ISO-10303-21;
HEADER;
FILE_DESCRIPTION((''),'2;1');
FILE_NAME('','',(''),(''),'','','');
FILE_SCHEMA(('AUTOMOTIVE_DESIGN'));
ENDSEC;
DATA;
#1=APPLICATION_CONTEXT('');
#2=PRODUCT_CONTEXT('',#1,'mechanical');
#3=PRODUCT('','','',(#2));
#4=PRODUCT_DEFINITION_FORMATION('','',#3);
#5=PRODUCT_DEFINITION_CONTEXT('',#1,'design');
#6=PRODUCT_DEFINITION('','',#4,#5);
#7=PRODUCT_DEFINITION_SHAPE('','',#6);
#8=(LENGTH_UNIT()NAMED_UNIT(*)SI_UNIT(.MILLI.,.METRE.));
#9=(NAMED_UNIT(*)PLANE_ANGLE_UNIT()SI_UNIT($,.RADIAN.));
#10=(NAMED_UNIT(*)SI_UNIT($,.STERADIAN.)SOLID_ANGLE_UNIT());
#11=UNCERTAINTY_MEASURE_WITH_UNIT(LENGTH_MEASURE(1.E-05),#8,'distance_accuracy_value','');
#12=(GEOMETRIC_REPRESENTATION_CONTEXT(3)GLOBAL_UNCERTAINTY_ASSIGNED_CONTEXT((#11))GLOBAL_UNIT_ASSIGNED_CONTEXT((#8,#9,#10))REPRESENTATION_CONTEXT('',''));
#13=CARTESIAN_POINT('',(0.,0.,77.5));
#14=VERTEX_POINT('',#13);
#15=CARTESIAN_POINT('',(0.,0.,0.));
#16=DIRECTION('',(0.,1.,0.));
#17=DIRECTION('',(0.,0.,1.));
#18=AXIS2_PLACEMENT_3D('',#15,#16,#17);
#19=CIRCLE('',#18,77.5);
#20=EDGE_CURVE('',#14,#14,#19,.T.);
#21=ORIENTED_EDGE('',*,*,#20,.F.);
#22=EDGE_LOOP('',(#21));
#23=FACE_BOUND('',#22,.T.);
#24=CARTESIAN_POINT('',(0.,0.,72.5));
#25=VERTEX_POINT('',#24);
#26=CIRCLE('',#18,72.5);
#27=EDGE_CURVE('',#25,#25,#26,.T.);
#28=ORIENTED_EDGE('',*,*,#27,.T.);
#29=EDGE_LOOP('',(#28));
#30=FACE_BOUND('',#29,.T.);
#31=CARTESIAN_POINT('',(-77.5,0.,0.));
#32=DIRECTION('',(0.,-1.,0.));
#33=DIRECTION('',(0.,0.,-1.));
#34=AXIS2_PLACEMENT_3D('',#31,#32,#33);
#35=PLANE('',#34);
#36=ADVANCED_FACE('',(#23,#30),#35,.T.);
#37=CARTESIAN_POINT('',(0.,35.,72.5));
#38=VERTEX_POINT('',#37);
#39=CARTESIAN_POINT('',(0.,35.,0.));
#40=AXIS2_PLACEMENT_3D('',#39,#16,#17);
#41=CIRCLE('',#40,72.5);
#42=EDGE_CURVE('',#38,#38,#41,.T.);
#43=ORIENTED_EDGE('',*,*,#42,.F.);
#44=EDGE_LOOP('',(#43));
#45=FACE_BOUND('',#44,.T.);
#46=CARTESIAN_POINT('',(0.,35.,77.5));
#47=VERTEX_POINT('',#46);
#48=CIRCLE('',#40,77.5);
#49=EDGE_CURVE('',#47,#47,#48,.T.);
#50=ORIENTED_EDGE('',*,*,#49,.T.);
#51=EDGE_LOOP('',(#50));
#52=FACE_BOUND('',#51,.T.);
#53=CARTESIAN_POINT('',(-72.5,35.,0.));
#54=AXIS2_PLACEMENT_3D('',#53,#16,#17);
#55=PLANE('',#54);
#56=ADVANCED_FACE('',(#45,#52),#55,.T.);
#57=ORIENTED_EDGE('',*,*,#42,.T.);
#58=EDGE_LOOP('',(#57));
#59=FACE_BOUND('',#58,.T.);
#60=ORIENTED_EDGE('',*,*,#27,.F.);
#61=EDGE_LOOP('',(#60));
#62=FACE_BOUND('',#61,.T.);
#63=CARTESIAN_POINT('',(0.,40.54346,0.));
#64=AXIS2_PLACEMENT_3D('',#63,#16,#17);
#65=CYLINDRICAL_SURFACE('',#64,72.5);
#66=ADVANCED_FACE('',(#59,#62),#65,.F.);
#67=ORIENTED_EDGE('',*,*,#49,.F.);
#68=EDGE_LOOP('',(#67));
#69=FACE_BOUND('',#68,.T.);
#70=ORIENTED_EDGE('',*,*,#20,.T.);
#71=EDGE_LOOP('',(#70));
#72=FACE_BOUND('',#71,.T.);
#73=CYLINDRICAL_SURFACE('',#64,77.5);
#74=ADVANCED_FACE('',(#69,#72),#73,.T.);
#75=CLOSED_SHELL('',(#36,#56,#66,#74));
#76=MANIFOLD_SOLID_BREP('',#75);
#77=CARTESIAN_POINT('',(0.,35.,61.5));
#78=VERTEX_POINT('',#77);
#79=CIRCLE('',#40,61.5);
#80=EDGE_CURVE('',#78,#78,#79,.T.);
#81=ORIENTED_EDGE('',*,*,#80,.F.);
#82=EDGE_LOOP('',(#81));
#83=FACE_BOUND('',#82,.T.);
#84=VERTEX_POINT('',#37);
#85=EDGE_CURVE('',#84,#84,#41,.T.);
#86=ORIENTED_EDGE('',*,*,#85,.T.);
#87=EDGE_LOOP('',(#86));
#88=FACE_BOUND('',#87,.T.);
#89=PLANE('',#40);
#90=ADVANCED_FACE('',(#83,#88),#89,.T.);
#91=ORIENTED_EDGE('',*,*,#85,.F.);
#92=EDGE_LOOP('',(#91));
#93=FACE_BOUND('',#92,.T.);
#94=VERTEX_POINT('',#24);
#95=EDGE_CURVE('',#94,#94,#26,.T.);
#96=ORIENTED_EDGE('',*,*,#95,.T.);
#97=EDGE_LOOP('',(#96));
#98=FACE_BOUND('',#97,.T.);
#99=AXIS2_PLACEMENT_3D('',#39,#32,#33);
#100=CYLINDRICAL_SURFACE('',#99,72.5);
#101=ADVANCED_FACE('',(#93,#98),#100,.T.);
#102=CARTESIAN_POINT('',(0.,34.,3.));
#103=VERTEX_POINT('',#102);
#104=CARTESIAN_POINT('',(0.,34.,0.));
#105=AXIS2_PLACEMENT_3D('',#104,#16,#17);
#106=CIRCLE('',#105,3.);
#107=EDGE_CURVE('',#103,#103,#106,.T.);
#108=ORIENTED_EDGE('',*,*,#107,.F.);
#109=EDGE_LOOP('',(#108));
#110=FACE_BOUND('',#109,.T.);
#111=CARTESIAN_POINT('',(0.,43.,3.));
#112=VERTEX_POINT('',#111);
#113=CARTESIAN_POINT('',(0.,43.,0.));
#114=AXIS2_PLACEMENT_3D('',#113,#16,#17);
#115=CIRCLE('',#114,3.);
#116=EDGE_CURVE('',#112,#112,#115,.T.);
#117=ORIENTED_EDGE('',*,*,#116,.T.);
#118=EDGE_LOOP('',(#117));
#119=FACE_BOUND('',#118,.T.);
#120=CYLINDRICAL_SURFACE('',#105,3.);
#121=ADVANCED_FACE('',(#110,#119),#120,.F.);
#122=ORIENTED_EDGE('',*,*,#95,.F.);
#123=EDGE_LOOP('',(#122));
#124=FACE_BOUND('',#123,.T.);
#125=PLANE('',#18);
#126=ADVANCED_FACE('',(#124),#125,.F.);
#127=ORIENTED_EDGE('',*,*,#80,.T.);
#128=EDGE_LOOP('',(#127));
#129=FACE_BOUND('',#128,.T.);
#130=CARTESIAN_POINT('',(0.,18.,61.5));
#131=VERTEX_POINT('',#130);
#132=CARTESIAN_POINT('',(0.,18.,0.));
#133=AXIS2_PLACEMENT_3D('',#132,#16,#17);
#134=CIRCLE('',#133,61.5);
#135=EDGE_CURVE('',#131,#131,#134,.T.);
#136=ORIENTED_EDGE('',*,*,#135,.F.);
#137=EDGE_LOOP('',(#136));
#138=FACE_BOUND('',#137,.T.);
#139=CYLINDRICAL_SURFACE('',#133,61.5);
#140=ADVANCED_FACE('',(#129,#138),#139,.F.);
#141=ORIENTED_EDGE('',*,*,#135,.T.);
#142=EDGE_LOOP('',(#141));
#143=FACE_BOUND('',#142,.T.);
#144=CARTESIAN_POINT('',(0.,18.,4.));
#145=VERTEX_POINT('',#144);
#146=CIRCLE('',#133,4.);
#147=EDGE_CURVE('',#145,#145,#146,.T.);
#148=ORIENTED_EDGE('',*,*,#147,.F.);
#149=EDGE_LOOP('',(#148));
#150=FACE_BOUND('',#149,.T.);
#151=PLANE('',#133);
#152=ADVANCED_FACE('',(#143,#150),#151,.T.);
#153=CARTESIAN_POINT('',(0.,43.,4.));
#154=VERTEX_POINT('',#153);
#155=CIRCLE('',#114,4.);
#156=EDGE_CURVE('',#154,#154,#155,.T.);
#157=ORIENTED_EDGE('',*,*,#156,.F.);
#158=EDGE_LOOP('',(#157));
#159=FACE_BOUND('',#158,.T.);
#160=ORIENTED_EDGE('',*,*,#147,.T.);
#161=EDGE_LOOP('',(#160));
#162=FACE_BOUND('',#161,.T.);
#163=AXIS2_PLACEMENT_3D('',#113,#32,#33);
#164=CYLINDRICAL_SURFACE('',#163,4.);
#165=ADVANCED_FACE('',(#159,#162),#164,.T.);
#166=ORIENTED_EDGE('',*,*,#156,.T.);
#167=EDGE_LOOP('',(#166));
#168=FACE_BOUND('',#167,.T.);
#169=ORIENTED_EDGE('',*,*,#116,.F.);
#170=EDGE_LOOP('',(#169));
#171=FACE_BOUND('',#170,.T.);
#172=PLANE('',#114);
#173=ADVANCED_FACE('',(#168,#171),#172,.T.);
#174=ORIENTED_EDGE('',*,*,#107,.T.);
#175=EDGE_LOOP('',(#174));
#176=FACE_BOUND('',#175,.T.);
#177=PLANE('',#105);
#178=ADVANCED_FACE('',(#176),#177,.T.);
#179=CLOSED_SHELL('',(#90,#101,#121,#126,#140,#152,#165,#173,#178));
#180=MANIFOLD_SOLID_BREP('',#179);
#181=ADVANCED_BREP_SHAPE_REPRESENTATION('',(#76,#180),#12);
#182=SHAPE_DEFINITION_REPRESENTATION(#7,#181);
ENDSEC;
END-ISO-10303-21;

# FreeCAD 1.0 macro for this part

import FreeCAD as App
import Part
import Sketcher

V = App.Vector


def add_polygon(sketch, points):
    """Adds a closed chain of lines whose ends are joined by coincident constraints."""
    first, n = sketch.GeometryCount, len(points)
    for a, b in zip(points, points[1:] + points[:1]):
        sketch.addGeometry(Part.LineSegment(App.Vector(*a, 0), App.Vector(*b, 0)), False)
    for i in range(n):
        sketch.addConstraint(Sketcher.Constraint("Coincident", first + i, 2, first + (i + 1) % n, 1))

doc = App.newDocument("Part")
body = doc.addObject("PartDesign::Body", "Body")

sketch1 = doc.addObject("Sketcher::SketchObject", "Sketch")
body.addObject(sketch1)
sketch1.AttachmentSupport = (doc.XZ_Plane, [""])
sketch1.MapMode = "FlatFace"
sketch1.addGeometry(Part.Circle(V(0, 0, 0), V(0, 0, 1), 72.5), False)
sketch1.addConstraint([
    Sketcher.Constraint("Coincident", 0, 3, -1, 1),
    Sketcher.Constraint("Diameter", 0, 145.0),
])
pad1 = doc.addObject("PartDesign::Pad", "Pad")
body.addObject(pad1)
pad1.Profile = sketch1
pad1.Length = 35
pad1.Reversed = True

sketch2 = doc.addObject("Sketcher::SketchObject", "Sketch001")
body.addObject(sketch2)
sketch2.AttachmentSupport = (doc.XZ_Plane, [""])
sketch2.MapMode = "FlatFace"
sketch2.AttachmentOffset = App.Placement(V(0, 0, -35), App.Rotation())
sketch2.addGeometry(Part.Circle(V(0, 0, 0), V(0, 0, 1), 61.5), False)
sketch2.addConstraint([
    Sketcher.Constraint("Coincident", 0, 3, -1, 1),
    Sketcher.Constraint("Diameter", 0, 123.0),
])
pocket1 = doc.addObject("PartDesign::Pocket", "Pocket")
body.addObject(pocket1)
pocket1.Profile = sketch2
pocket1.Length = 17
pocket1.Reversed = True

sketch3 = doc.addObject("Sketcher::SketchObject", "Sketch002")
body.addObject(sketch3)
sketch3.AttachmentSupport = (doc.XZ_Plane, [""])
sketch3.MapMode = "FlatFace"
sketch3.AttachmentOffset = App.Placement(V(0, 0, -18), App.Rotation())
sketch3.addGeometry(Part.Circle(V(0, 0, 0), V(0, 0, 1), 4), False)
sketch3.addConstraint([
    Sketcher.Constraint("Coincident", 0, 3, -1, 1),
    Sketcher.Constraint("Diameter", 0, 8.0),
])
pad2 = doc.addObject("PartDesign::Pad", "Pad001")
body.addObject(pad2)
pad2.Profile = sketch3
pad2.Length = 25
pad2.Reversed = True

sketch4 = doc.addObject("Sketcher::SketchObject", "Sketch003")
body.addObject(sketch4)
sketch4.AttachmentSupport = (doc.XZ_Plane, [""])
sketch4.MapMode = "FlatFace"
sketch4.AttachmentOffset = App.Placement(V(0, 0, -43), App.Rotation())
sketch4.addGeometry(Part.Circle(V(0, 0, 0), V(0, 0, 1), 3), False)
sketch4.addConstraint([
    Sketcher.Constraint("Coincident", 0, 3, -1, 1),
    Sketcher.Constraint("Diameter", 0, 6.0),
])
pocket2 = doc.addObject("PartDesign::Pocket", "Pocket001")
body.addObject(pocket2)
pocket2.Profile = sketch4
pocket2.Length = 9
pocket2.Reversed = True
body2 = doc.addObject("PartDesign::Body", "Body001")

sketch5 = doc.addObject("Sketcher::SketchObject", "Sketch004")
body2.addObject(sketch5)
sketch5.AttachmentSupport = (doc.getObject("XY_Plane001"), [""])
sketch5.MapMode = "FlatFace"
add_polygon(sketch5, [(-77.5, 35), (-77.5, 0), (-72.5, 0), (-72.5, 35)])
sketch5.addConstraint([
    Sketcher.Constraint("Vertical", 0),
    Sketcher.Constraint("Horizontal", 1),
    Sketcher.Constraint("Vertical", 2),
    Sketcher.Constraint("Horizontal", 3),
    Sketcher.Constraint("PointOnObject", 0, 2, -1),
    Sketcher.Constraint("DistanceX", 1, 1, 1, 2, 5.0),
    Sketcher.Constraint("DistanceY", 0, 2, 0, 1, 35.0),
    Sketcher.Constraint("DistanceX", 0, 2, -1, 1, 77.5),
])
revolution = doc.addObject("PartDesign::Revolution", "Revolution")
body2.addObject(revolution)
revolution.Profile = sketch5
revolution.ReferenceAxis = (sketch5, ["V_Axis"])
revolution.Angle = 360

doc.recompute()
